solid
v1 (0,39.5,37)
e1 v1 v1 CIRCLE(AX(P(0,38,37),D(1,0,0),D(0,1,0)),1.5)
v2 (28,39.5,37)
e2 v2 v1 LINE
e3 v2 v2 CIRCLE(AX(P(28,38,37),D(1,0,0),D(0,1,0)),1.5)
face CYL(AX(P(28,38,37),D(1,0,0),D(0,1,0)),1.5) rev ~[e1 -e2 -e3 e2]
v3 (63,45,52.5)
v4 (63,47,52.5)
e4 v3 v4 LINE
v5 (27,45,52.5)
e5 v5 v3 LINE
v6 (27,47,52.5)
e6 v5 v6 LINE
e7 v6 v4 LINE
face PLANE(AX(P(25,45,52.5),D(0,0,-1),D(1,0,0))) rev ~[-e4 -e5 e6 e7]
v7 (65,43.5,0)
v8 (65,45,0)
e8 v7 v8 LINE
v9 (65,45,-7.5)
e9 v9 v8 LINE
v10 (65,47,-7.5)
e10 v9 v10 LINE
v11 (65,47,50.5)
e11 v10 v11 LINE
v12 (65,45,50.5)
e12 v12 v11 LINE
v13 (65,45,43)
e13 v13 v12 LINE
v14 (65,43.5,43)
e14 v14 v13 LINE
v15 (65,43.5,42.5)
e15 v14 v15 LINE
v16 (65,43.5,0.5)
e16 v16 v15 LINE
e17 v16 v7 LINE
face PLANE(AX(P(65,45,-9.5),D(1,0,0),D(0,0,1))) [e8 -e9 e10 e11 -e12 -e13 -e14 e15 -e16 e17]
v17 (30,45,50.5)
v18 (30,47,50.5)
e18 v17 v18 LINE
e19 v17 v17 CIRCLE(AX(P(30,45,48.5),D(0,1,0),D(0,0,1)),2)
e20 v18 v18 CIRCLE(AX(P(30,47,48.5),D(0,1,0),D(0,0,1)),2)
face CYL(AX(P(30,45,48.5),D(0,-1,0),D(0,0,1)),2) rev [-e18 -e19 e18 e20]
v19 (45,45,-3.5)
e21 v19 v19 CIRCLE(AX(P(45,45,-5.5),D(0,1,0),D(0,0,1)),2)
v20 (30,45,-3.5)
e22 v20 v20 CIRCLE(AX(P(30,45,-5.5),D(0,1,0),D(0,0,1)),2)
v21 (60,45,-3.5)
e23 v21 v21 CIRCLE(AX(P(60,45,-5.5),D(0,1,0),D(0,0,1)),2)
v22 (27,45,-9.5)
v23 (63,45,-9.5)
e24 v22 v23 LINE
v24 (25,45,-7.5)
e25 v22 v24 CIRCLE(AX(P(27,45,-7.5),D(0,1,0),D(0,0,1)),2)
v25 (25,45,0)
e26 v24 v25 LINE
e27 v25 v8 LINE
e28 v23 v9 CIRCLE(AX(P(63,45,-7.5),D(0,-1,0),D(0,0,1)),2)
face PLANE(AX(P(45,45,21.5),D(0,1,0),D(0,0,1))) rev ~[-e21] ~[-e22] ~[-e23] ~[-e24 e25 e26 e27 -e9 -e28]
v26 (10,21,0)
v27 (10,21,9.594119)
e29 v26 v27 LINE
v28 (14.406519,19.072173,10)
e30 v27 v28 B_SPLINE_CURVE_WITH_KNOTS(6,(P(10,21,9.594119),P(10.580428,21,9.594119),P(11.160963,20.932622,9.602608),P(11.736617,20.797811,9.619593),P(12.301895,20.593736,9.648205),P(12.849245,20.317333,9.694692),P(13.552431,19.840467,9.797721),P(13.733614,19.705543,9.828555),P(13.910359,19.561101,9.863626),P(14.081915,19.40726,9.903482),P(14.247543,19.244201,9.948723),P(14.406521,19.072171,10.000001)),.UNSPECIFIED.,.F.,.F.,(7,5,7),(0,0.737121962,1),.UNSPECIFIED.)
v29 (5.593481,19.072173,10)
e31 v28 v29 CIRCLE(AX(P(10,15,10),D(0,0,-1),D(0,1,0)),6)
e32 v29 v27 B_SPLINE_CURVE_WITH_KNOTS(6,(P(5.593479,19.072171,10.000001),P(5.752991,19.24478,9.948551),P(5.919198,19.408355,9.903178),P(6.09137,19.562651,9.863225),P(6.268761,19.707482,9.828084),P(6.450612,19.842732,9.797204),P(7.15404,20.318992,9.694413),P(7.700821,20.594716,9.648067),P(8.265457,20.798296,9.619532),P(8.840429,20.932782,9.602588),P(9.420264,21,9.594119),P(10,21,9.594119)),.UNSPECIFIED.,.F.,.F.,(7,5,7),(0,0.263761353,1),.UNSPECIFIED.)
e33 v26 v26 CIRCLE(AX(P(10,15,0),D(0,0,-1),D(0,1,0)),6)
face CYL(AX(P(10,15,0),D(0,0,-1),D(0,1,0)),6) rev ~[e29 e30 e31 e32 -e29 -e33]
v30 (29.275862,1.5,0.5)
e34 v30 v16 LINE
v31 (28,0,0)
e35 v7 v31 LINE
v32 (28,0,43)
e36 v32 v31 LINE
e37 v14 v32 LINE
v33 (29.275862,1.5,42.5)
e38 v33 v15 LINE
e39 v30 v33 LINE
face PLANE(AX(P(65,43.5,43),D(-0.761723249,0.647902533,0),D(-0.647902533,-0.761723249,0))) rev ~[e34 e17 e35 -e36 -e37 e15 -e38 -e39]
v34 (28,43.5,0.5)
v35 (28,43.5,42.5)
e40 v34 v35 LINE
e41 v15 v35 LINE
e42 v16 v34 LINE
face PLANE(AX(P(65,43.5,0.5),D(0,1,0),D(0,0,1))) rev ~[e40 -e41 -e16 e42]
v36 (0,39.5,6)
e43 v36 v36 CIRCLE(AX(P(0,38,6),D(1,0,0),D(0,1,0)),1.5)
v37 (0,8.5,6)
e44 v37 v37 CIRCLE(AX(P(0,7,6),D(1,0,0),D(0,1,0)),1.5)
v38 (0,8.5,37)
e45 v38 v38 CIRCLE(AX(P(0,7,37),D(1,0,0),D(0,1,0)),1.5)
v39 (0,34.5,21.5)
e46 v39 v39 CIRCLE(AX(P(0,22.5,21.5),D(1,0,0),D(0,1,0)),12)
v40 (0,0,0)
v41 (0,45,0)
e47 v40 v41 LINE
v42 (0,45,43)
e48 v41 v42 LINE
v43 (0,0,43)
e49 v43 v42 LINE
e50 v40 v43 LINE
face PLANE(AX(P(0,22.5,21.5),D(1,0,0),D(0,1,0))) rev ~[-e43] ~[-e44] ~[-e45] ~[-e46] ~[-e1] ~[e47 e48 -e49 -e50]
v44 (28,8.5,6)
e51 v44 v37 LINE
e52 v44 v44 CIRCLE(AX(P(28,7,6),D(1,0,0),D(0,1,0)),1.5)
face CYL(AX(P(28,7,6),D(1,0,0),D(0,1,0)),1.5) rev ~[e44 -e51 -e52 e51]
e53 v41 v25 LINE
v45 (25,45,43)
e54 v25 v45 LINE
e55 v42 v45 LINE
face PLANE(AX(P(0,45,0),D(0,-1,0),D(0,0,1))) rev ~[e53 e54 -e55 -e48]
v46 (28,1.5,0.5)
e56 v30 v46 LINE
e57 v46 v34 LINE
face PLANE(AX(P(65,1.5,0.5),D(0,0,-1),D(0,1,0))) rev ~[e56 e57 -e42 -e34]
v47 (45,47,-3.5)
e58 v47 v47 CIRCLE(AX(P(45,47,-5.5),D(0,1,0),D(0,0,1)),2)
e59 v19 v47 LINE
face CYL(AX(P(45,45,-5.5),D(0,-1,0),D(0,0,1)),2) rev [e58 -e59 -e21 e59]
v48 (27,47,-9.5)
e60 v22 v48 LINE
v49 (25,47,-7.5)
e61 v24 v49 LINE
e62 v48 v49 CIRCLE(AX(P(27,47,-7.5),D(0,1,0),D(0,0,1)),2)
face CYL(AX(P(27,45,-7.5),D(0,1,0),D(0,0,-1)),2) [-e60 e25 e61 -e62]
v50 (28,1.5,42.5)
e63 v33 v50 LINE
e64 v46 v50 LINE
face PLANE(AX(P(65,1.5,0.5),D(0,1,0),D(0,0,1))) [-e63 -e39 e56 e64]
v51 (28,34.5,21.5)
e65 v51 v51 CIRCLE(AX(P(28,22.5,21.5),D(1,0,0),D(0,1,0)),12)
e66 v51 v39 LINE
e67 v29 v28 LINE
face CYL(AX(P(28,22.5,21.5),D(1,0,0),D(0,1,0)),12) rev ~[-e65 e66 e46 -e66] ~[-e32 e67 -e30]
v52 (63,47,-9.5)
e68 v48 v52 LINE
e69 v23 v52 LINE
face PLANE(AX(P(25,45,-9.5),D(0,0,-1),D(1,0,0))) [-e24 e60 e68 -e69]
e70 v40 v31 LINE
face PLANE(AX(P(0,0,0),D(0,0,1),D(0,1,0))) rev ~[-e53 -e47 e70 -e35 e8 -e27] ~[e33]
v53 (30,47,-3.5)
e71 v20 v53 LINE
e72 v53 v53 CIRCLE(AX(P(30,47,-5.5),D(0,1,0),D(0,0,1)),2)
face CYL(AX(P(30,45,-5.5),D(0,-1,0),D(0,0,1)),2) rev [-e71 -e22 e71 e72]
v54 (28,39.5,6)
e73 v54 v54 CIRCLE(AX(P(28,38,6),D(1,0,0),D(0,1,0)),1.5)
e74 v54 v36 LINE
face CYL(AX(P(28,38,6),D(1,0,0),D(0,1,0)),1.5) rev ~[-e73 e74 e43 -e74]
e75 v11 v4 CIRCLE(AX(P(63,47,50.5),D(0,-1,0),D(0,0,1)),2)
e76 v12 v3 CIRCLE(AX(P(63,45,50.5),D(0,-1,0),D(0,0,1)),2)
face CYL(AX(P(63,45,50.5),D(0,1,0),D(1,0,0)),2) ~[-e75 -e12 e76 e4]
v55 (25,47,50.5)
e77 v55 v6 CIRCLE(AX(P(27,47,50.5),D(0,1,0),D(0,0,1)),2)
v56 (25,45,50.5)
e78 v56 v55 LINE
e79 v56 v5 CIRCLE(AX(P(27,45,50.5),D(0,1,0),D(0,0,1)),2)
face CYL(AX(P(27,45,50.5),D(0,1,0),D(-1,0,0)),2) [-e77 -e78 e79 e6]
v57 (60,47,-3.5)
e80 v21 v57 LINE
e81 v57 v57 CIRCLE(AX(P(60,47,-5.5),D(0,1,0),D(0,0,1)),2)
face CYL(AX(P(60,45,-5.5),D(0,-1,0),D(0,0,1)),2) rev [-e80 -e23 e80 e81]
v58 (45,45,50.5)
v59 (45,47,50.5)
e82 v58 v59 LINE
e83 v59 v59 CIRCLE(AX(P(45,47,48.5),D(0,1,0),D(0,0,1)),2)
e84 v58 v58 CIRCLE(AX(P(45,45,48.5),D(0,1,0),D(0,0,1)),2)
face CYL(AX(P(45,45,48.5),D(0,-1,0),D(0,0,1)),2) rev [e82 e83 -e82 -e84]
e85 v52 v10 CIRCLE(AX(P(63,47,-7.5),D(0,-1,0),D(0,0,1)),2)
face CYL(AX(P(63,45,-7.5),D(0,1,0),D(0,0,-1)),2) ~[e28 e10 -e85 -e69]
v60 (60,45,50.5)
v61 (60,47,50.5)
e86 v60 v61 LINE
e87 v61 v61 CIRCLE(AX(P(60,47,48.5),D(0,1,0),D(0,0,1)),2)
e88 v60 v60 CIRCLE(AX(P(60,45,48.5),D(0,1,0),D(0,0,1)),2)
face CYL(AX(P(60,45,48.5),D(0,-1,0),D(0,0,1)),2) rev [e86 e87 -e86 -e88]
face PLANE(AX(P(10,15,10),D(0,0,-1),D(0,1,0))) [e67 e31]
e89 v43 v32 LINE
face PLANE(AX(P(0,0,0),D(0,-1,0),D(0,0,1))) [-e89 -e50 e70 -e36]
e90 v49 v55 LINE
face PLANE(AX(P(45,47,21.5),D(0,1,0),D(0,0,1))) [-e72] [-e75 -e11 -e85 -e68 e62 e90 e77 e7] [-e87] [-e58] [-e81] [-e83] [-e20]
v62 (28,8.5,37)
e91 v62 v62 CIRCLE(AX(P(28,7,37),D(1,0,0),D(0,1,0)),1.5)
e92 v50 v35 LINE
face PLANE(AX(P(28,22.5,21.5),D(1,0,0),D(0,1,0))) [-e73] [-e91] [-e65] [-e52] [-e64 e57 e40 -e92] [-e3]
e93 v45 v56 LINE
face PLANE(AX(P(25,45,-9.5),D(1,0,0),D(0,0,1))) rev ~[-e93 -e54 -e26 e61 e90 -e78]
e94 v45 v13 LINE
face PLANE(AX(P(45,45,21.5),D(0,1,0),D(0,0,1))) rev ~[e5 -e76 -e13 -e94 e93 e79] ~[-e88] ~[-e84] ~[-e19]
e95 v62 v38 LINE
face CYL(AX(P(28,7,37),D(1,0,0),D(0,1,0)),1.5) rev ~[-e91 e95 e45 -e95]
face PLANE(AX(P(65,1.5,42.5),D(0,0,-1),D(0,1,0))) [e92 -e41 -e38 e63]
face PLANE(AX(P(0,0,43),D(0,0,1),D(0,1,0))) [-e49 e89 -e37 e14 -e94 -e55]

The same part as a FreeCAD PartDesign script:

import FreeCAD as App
import Part
import Sketcher
from FreeCAD import Vector


def edges_at(feature, points):
    """Names of the edges that pass closest to the given points."""
    edges = feature.Shape.Edges
    near = lambda p: min(range(len(edges)), key=lambda i: edges[i].distToShape(Part.Vertex(*p))[0])
    return sorted({f"Edge{near(p) + 1}" for p in points})

doc = App.newDocument("Part")
body = doc.addObject("PartDesign::Body", "Body")

# Sketch on YZ plane
sketch1 = body.newObject("Sketcher::SketchObject", "Sketch")
sketch1.AttachmentSupport = (doc.getObject("YZ_Plane"), [""])
sketch1.MapMode = "FlatFace"
sketch1.addGeometry(Part.LineSegment(Vector(0, 43, 0), Vector(0, 0, 0)), False)
sketch1.addGeometry(Part.LineSegment(Vector(0, 0, 0), Vector(45, 0, 0)), False)
sketch1.addGeometry(Part.LineSegment(Vector(45, 0, 0), Vector(45, 43, 0)), False)
sketch1.addGeometry(Part.LineSegment(Vector(45, 43, 0), Vector(0, 43, 0)), False)
sketch1.addConstraint(Sketcher.Constraint("Coincident", 0, 2, 1, 1))
sketch1.addConstraint(Sketcher.Constraint("Coincident", 1, 2, 2, 1))
sketch1.addConstraint(Sketcher.Constraint("Coincident", 2, 2, 3, 1))
sketch1.addConstraint(Sketcher.Constraint("Coincident", 3, 2, 0, 1))
sketch1.addConstraint(Sketcher.Constraint("Vertical", 0))
sketch1.addConstraint(Sketcher.Constraint("Horizontal", 1))
sketch1.addConstraint(Sketcher.Constraint("Vertical", 2))
sketch1.addConstraint(Sketcher.Constraint("Horizontal", 3))
sketch1.addConstraint(Sketcher.Constraint("Coincident", 0, 2, -1, 1))
sketch1.addConstraint(Sketcher.Constraint("DistanceX", 1, 1, 1, 2, 45.0))
sketch1.addConstraint(Sketcher.Constraint("DistanceY", 0, 2, 0, 1, 43.0))
pad1 = body.newObject("PartDesign::Pad", "Pad")
pad1.Profile = sketch1
pad1.Length = 65

# Sketch on YZ plane
sketch2 = body.newObject("Sketcher::SketchObject", "Sketch001")
sketch2.AttachmentSupport = (doc.getObject("YZ_Plane"), [""])
sketch2.MapMode = "FlatFace"
sketch2.AttachmentOffset = App.Placement(Vector(0, 0, 65), App.Rotation())
sketch2.addGeometry(Part.LineSegment(Vector(2, 42, 0), Vector(2, 0, 0)), False)
sketch2.addGeometry(Part.LineSegment(Vector(2, 0, 0), Vector(44, 0, 0)), False)
sketch2.addGeometry(Part.LineSegment(Vector(44, 0, 0), Vector(44, 42, 0)), False)
sketch2.addGeometry(Part.LineSegment(Vector(44, 42, 0), Vector(2, 42, 0)), False)
sketch2.addConstraint(Sketcher.Constraint("Coincident", 0, 2, 1, 1))
sketch2.addConstraint(Sketcher.Constraint("Coincident", 1, 2, 2, 1))
sketch2.addConstraint(Sketcher.Constraint("Coincident", 2, 2, 3, 1))
sketch2.addConstraint(Sketcher.Constraint("Coincident", 3, 2, 0, 1))
sketch2.addConstraint(Sketcher.Constraint("Vertical", 0))
sketch2.addConstraint(Sketcher.Constraint("Horizontal", 1))
sketch2.addConstraint(Sketcher.Constraint("Vertical", 2))
sketch2.addConstraint(Sketcher.Constraint("Horizontal", 3))
sketch2.addConstraint(Sketcher.Constraint("Equal", 3, 0))
sketch2.addConstraint(Sketcher.Constraint("DistanceX", 1, 1, 1, 2, 42.0))
sketch2.addConstraint(Sketcher.Constraint("DistanceX", -1, 1, 0, 2, 1.5))
sketch2.addConstraint(Sketcher.Constraint("DistanceY", -1, 1, 0, 2, 0.5))
pocket1 = body.newObject("PartDesign::Pocket", "Pocket")
pocket1.Profile = sketch2
pocket1.Length = 37

# Sketch on XY plane
sketch3 = body.newObject("Sketcher::SketchObject", "Sketch002")
sketch3.AttachmentSupport = (doc.getObject("XY_Plane"), [""])
sketch3.MapMode = "FlatFace"
sketch3.AttachmentOffset = App.Placement(Vector(0, 0, 43), App.Rotation())
sketch3.addGeometry(Part.LineSegment(Vector(65, 44, 0), Vector(28, 0, 0)), False)
sketch3.addGeometry(Part.LineSegment(Vector(28, 0, 0), Vector(65, 0, 0)), False)
sketch3.addGeometry(Part.LineSegment(Vector(65, 0, 0), Vector(65, 44, 0)), False)
sketch3.addConstraint(Sketcher.Constraint("Coincident", 0, 2, 1, 1))
sketch3.addConstraint(Sketcher.Constraint("Coincident", 1, 2, 2, 1))
sketch3.addConstraint(Sketcher.Constraint("Coincident", 2, 2, 0, 1))
sketch3.addConstraint(Sketcher.Constraint("Horizontal", 1))
sketch3.addConstraint(Sketcher.Constraint("Vertical", 2))
sketch3.addConstraint(Sketcher.Constraint("PointOnObject", 0, 2, -1))
sketch3.addConstraint(Sketcher.Constraint("DistanceX", 1, 1, 1, 2, 37.0))
sketch3.addConstraint(Sketcher.Constraint("DistanceY", 2, 1, 2, 2, 43.5))
sketch3.addConstraint(Sketcher.Constraint("DistanceX", -1, 1, 0, 2, 28.0))
pocket2 = body.newObject("PartDesign::Pocket", "Pocket001")
pocket2.Profile = sketch3
pocket2.Type = "ThroughAll"

# Sketch on YZ plane
sketch4 = body.newObject("Sketcher::SketchObject", "Sketch003")
sketch4.AttachmentSupport = (doc.getObject("YZ_Plane"), [""])
sketch4.MapMode = "FlatFace"
sketch4.AttachmentOffset = App.Placement(Vector(0, 0, 28), App.Rotation())
sketch4.addGeometry(Part.Circle(Vector(22.5, 21.5, 0), Vector(0, 0, 1), 12), False)
sketch4.addGeometry(Part.Circle(Vector(7, 37, 0), Vector(0, 0, 1), 1.5), False)
sketch4.addGeometry(Part.Circle(Vector(38, 37, 0), Vector(0, 0, 1), 1.5), False)
sketch4.addGeometry(Part.Circle(Vector(7, 6, 0), Vector(0, 0, 1), 1.5), False)
sketch4.addGeometry(Part.Circle(Vector(38, 6, 0), Vector(0, 0, 1), 1.5), False)
sketch4.addConstraint(Sketcher.Constraint("Equal", 1, 2))
sketch4.addConstraint(Sketcher.Constraint("Equal", 2, 3))
sketch4.addConstraint(Sketcher.Constraint("Equal", 3, 4))
sketch4.addConstraint(Sketcher.Constraint("Horizontal", 1, 3, 2, 3))
sketch4.addConstraint(Sketcher.Constraint("Horizontal", 3, 3, 4, 3))
sketch4.addConstraint(Sketcher.Constraint("Vertical", 1, 3, 3, 3))
sketch4.addConstraint(Sketcher.Constraint("Vertical", 2, 3, 4, 3))
sketch4.addConstraint(Sketcher.Constraint("Diameter", 0, 24.0))
sketch4.addConstraint(Sketcher.Constraint("Diameter", 1, 3.0))
sketch4.addConstraint(Sketcher.Constraint("DistanceX", -1, 1, 1, 3, 7.0))
sketch4.addConstraint(Sketcher.Constraint("DistanceY", -1, 1, 1, 3, 37.0))
sketch4.addConstraint(Sketcher.Constraint("DistanceX", -1, 1, 2, 3, 38.0))
sketch4.addConstraint(Sketcher.Constraint("DistanceY", -1, 1, 3, 3, 6.0))
sketch4.addConstraint(Sketcher.Constraint("DistanceX", -1, 1, 0, 3, 22.5))
sketch4.addConstraint(Sketcher.Constraint("DistanceY", -1, 1, 0, 3, 21.5))
pocket3 = body.newObject("PartDesign::Pocket", "Pocket002")
pocket3.Profile = sketch4
pocket3.Type = "ThroughAll"

# Sketch on XY plane
sketch5 = body.newObject("Sketcher::SketchObject", "Sketch004")
sketch5.AttachmentSupport = (doc.getObject("XY_Plane"), [""])
sketch5.MapMode = "FlatFace"
sketch5.addGeometry(Part.Circle(Vector(10, 15, 0), Vector(0, 0, 1), 6), False)
sketch5.addConstraint(Sketcher.Constraint("Diameter", 0, 12.0))
sketch5.addConstraint(Sketcher.Constraint("DistanceX", -1, 1, 0, 3, 10.0))
sketch5.addConstraint(Sketcher.Constraint("DistanceY", -1, 1, 0, 3, 15.0))
pocket4 = body.newObject("PartDesign::Pocket", "Pocket003")
pocket4.Profile = sketch5
pocket4.Length = 10
pocket4.Reversed = True

# Sketch on XZ plane
sketch6 = body.newObject("Sketcher::SketchObject", "Sketch005")
sketch6.AttachmentSupport = (doc.getObject("XZ_Plane"), [""])
sketch6.MapMode = "FlatFace"
sketch6.AttachmentOffset = App.Placement(Vector(0, 0, -45), App.Rotation())
sketch6.addGeometry(Part.LineSegment(Vector(65, -9.5, 0), Vector(25, -9.5, 0)), False)
sketch6.addGeometry(Part.LineSegment(Vector(25, -9.5, 0), Vector(25, 52.5, 0)), False)
sketch6.addGeometry(Part.LineSegment(Vector(25, 52.5, 0), Vector(65, 52.5, 0)), False)
sketch6.addGeometry(Part.LineSegment(Vector(65, 52.5, 0), Vector(65, -9.5, 0)), False)
sketch6.addGeometry(Part.Circle(Vector(30, -5.5, 0), Vector(0, 0, 1), 2), False)
sketch6.addGeometry(Part.Circle(Vector(30, 48.5, 0), Vector(0, 0, 1), 2), False)
sketch6.addGeometry(Part.Circle(Vector(45, -5.5, 0), Vector(0, 0, 1), 2), False)
sketch6.addGeometry(Part.Circle(Vector(60, -5.5, 0), Vector(0, 0, 1), 2), False)
sketch6.addGeometry(Part.Circle(Vector(45, 48.5, 0), Vector(0, 0, 1), 2), False)
sketch6.addGeometry(Part.Circle(Vector(60, 48.5, 0), Vector(0, 0, 1), 2), False)
sketch6.addConstraint(Sketcher.Constraint("Coincident", 0, 2, 1, 1))
sketch6.addConstraint(Sketcher.Constraint("Coincident", 1, 2, 2, 1))
sketch6.addConstraint(Sketcher.Constraint("Coincident", 2, 2, 3, 1))
sketch6.addConstraint(Sketcher.Constraint("Coincident", 3, 2, 0, 1))
sketch6.addConstraint(Sketcher.Constraint("Horizontal", 0))
sketch6.addConstraint(Sketcher.Constraint("Vertical", 1))
sketch6.addConstraint(Sketcher.Constraint("Horizontal", 2))
sketch6.addConstraint(Sketcher.Constraint("Vertical", 3))
sketch6.addConstraint(Sketcher.Constraint("Equal", 4, 5))
sketch6.addConstraint(Sketcher.Constraint("Equal", 5, 6))
sketch6.addConstraint(Sketcher.Constraint("Equal", 6, 7))
sketch6.addConstraint(Sketcher.Constraint("Equal", 7, 8))
sketch6.addConstraint(Sketcher.Constraint("Equal", 8, 9))
sketch6.addConstraint(Sketcher.Constraint("Horizontal", 4, 3, 6, 3))
sketch6.addConstraint(Sketcher.Constraint("Horizontal", 6, 3, 7, 3))
sketch6.addConstraint(Sketcher.Constraint("Horizontal", 5, 3, 8, 3))
sketch6.addConstraint(Sketcher.Constraint("Horizontal", 8, 3, 9, 3))
sketch6.addConstraint(Sketcher.Constraint("Vertical", 4, 3, 5, 3))
sketch6.addConstraint(Sketcher.Constraint("Vertical", 6, 3, 8, 3))
sketch6.addConstraint(Sketcher.Constraint("Vertical", 7, 3, 9, 3))
sketch6.addConstraint(Sketcher.Constraint("Diameter", 4, 4.0))
sketch6.addConstraint(Sketcher.Constraint("DistanceX", 0, 2, 0, 1, 40.0))
sketch6.addConstraint(Sketcher.Constraint("DistanceY", 1, 1, 1, 2, 62.0))
sketch6.addConstraint(Sketcher.Constraint("DistanceX", -1, 1, 4, 3, 30.0))
sketch6.addConstraint(Sketcher.Constraint("DistanceX", -1, 1, 6, 3, 45.0))
sketch6.addConstraint(Sketcher.Constraint("DistanceX", -1, 1, 7, 3, 60.0))
sketch6.addConstraint(Sketcher.Constraint("DistanceX", -1, 1, 0, 2, 25.0))
sketch6.addConstraint(Sketcher.Constraint("DistanceY", 4, 3, 5, 3, 54.0))
sketch6.addConstraint(Sketcher.Constraint("DistanceY", 0, 2, 4, 3, 4.0))
sketch6.addConstraint(Sketcher.Constraint("DistanceY", 4, 3, -1, 1, 5.5))
pad2 = body.newObject("PartDesign::Pad", "Pad001")
pad2.Profile = sketch6
pad2.Length = 2
pad2.Reversed = True
doc.recompute()

fillet = body.newObject("PartDesign::Fillet", "Fillet")
fillet.Base = (pad2, edges_at(pad2, [
    (65, 46, 52.5),
    (25, 46, 52.5),
    (65, 46, -9.5),
    (25, 46, -9.5),
]))
fillet.Radius = 2

doc.recompute()
